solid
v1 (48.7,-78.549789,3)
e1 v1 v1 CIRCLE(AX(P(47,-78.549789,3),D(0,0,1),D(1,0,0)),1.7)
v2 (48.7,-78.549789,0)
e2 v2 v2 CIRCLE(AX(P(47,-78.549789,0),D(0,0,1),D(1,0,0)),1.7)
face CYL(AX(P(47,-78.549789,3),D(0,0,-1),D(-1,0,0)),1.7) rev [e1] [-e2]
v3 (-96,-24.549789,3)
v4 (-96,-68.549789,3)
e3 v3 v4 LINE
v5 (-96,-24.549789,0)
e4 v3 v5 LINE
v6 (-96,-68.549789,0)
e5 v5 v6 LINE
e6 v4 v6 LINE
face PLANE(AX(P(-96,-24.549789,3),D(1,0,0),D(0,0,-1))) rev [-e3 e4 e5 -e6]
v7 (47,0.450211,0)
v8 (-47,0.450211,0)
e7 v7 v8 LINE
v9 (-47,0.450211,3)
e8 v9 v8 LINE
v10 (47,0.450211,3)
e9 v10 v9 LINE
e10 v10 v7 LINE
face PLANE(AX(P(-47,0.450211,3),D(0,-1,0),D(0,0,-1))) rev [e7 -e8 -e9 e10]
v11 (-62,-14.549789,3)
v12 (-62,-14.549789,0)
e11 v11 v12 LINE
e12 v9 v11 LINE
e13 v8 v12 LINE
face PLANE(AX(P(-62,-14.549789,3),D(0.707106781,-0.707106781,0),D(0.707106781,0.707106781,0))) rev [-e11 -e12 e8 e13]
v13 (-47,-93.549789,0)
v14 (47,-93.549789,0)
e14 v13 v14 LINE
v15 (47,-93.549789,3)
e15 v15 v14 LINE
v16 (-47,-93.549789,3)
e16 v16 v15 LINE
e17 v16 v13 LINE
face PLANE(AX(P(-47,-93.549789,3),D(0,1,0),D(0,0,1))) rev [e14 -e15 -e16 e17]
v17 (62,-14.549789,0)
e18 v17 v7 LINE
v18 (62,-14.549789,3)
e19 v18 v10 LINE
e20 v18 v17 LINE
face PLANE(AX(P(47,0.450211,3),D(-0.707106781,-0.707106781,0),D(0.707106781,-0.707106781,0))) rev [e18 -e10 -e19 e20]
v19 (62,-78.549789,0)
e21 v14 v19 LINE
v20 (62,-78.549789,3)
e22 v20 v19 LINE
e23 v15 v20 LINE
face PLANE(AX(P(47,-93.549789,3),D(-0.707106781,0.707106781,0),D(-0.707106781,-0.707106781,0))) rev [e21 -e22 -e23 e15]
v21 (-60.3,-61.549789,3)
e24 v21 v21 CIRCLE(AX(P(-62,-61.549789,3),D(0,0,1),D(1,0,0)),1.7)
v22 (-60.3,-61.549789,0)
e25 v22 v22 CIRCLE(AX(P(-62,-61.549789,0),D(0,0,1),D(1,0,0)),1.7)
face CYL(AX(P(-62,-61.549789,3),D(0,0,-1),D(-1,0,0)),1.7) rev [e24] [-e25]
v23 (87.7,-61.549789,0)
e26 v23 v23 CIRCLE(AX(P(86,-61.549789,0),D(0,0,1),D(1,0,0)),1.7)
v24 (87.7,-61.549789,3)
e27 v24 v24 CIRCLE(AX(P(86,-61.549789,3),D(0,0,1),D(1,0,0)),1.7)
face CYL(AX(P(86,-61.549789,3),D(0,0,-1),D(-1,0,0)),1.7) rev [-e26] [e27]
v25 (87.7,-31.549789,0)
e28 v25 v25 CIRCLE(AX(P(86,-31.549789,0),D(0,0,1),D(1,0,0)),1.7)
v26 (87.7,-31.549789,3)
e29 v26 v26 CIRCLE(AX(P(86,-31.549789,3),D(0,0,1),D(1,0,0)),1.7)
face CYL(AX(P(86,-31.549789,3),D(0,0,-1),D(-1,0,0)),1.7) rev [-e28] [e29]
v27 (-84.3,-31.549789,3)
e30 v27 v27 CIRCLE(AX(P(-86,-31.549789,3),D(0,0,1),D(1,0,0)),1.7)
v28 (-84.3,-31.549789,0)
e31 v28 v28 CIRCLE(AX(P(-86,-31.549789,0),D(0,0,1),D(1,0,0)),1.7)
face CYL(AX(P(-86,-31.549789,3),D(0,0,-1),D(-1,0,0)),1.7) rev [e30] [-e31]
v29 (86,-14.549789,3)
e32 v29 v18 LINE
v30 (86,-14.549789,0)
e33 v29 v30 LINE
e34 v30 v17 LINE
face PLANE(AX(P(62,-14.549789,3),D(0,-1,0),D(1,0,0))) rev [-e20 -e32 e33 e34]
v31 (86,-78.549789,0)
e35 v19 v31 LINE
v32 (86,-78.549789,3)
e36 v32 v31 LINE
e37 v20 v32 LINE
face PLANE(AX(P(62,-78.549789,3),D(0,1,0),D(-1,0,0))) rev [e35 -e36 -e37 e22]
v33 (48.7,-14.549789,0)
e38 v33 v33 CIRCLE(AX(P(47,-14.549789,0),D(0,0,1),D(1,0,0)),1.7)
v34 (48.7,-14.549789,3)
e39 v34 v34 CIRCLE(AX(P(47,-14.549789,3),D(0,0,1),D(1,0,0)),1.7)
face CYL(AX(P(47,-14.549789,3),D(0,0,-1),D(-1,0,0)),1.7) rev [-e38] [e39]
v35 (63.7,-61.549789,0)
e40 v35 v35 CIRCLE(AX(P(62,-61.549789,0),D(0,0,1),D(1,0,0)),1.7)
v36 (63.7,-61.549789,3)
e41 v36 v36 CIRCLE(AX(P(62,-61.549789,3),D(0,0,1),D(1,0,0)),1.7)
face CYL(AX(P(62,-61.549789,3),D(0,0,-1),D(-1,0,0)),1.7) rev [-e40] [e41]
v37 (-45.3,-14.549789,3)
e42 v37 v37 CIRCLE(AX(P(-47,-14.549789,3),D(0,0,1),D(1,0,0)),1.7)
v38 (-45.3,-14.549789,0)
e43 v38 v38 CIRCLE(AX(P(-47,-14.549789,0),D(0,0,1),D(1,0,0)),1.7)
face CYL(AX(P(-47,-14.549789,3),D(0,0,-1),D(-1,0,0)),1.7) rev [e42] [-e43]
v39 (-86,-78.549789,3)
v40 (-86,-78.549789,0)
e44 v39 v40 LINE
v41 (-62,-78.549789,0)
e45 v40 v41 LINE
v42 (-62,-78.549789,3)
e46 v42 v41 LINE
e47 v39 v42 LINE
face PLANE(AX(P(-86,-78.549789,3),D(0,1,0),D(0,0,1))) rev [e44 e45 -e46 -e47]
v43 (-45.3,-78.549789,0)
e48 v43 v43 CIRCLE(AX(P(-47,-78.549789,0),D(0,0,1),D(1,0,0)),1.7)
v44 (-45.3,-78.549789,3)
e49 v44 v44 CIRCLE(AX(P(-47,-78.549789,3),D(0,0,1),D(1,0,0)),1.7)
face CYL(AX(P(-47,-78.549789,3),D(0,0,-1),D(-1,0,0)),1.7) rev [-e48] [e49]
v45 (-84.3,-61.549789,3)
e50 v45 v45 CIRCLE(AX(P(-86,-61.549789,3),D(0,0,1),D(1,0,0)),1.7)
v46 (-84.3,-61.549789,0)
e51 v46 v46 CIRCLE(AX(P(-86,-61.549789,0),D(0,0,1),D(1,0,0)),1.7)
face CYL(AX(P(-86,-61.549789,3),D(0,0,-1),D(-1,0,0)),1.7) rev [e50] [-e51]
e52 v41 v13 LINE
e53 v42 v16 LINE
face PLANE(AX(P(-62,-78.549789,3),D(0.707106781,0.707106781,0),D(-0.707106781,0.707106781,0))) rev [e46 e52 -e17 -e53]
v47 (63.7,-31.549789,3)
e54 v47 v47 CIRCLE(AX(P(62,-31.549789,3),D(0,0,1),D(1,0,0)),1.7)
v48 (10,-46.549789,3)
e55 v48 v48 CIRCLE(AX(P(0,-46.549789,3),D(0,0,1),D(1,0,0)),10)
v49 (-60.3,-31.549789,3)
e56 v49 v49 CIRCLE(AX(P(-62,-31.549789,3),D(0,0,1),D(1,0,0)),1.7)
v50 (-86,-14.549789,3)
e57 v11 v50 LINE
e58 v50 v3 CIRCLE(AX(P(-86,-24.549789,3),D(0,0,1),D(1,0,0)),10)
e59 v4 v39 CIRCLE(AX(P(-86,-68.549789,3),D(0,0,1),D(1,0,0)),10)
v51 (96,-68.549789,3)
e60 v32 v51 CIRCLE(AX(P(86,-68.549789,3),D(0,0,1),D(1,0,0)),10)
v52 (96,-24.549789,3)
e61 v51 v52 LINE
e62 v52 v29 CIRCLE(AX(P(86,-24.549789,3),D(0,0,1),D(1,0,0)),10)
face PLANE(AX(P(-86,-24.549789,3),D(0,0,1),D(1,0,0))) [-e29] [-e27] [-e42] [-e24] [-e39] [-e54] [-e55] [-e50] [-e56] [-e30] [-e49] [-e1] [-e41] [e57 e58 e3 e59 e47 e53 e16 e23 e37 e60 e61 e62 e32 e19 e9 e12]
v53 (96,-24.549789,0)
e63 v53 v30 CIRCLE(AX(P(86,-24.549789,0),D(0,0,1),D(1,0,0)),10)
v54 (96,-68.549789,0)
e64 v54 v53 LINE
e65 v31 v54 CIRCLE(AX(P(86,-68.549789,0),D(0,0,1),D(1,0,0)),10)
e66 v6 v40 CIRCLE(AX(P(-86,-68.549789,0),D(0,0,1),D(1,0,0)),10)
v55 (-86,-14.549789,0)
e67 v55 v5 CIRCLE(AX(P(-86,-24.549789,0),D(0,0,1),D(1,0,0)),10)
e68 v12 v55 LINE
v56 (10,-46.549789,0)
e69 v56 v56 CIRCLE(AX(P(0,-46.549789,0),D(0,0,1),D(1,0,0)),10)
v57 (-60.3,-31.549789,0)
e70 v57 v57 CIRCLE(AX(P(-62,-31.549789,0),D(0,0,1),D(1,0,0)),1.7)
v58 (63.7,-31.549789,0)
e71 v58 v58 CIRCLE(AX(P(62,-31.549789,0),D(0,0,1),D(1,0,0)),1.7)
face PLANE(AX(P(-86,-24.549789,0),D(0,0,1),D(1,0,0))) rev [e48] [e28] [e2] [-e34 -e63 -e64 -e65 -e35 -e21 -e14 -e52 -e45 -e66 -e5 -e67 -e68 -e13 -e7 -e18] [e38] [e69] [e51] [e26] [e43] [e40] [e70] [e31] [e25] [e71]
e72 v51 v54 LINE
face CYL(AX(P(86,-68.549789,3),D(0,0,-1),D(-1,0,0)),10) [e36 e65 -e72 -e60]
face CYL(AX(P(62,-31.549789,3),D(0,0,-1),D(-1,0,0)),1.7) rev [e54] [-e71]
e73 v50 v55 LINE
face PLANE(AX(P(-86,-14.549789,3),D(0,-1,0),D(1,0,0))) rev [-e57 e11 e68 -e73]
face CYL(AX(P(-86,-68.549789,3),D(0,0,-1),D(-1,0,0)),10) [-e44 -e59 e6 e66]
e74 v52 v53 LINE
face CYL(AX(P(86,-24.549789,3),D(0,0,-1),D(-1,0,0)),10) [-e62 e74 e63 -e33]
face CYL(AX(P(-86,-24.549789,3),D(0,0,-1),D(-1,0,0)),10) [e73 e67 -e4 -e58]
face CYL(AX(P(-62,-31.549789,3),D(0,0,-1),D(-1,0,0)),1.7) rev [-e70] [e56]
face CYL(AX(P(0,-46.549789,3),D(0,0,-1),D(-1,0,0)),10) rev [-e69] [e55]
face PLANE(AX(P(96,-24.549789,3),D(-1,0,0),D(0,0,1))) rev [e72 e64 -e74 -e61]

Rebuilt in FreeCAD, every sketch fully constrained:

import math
import FreeCAD as App
import Part
import Sketcher
Q = App.Units.Quantity

doc = App.newDocument("Part")
body = doc.addObject("PartDesign::Body", "Body")

# Sketch on XY plane
sketch1 = doc.addObject("Sketcher::SketchObject", "Sketch")
body.addObject(sketch1)
sketch1.AttachmentSupport = (doc.XY_Plane, [""])
sketch1.MapMode = "FlatFace"
sketch1.addGeometry([
    Part.LineSegment(App.Vector(-47, 0.450211, 0), App.Vector(-62, -14.549789, 0)),  # 0
    Part.LineSegment(App.Vector(-62, -14.549789, 0), App.Vector(-86, -14.549789, 0)),  # 1
    Part.ArcOfCircle(Part.Circle(App.Vector(-86, -24.549789, 0), App.Vector(0, 0, 1), 10), math.radians(90), math.radians(180)),  # 2
    Part.LineSegment(App.Vector(-96, -24.549789, 0), App.Vector(-96, -68.549789, 0)),  # 3
    Part.ArcOfCircle(Part.Circle(App.Vector(-86, -68.549789, 0), App.Vector(0, 0, 1), 10), math.radians(-180), math.radians(-90)),  # 4
    Part.LineSegment(App.Vector(-86, -78.549789, 0), App.Vector(-62, -78.549789, 0)),  # 5
    Part.LineSegment(App.Vector(-62, -78.549789, 0), App.Vector(-47, -93.549789, 0)),  # 6
    Part.LineSegment(App.Vector(-47, -93.549789, 0), App.Vector(47, -93.549789, 0)),  # 7
    Part.LineSegment(App.Vector(47, -93.549789, 0), App.Vector(62, -78.549789, 0)),  # 8
    Part.LineSegment(App.Vector(62, -78.549789, 0), App.Vector(86, -78.549789, 0)),  # 9
    Part.ArcOfCircle(Part.Circle(App.Vector(86, -68.549789, 0), App.Vector(0, 0, 1), 10), math.radians(-90), math.radians(0)),  # 10
    Part.LineSegment(App.Vector(96, -68.549789, 0), App.Vector(96, -24.549789, 0)),  # 11
    Part.ArcOfCircle(Part.Circle(App.Vector(86, -24.549789, 0), App.Vector(0, 0, 1), 10), math.radians(0), math.radians(90)),  # 12
    Part.LineSegment(App.Vector(86, -14.549789, 0), App.Vector(62, -14.549789, 0)),  # 13
    Part.LineSegment(App.Vector(62, -14.549789, 0), App.Vector(47, 0.450211, 0)),  # 14
    Part.LineSegment(App.Vector(47, 0.450211, 0), App.Vector(-47, 0.450211, 0)),  # 15
    Part.Circle(App.Vector(47, -78.549789, 0), App.Vector(0, 0, 1), 1.7),  # 16
    Part.Circle(App.Vector(86, -61.549789, 0), App.Vector(0, 0, 1), 1.7),  # 17
    Part.Circle(App.Vector(62, -61.549789, 0), App.Vector(0, 0, 1), 1.7),  # 18
    Part.Circle(App.Vector(-47, -78.549789, 0), App.Vector(0, 0, 1), 1.7),  # 19
    Part.Circle(App.Vector(0, -46.549789, 0), App.Vector(0, 0, 1), 10),  # 20
    Part.Circle(App.Vector(-62, -61.549789, 0), App.Vector(0, 0, 1), 1.7),  # 21
    Part.Circle(App.Vector(-86, -61.549789, 0), App.Vector(0, 0, 1), 1.7),  # 22
    Part.Circle(App.Vector(86, -31.549789, 0), App.Vector(0, 0, 1), 1.7),  # 23
    Part.Circle(App.Vector(62, -31.549789, 0), App.Vector(0, 0, 1), 1.7),  # 24
    Part.Circle(App.Vector(47, -14.549789, 0), App.Vector(0, 0, 1), 1.7),  # 25
    Part.Circle(App.Vector(-62, -31.549789, 0), App.Vector(0, 0, 1), 1.7),  # 26
    Part.Circle(App.Vector(-86, -31.549789, 0), App.Vector(0, 0, 1), 1.7),  # 27
    Part.Circle(App.Vector(-47, -14.549789, 0), App.Vector(0, 0, 1), 1.7),  # 28
], False)
sketch1.addConstraint([
    Sketcher.Constraint("Coincident", 0, 2, 1, 1),
    Sketcher.Constraint("Tangent", 1, 2, 2, 1),
    Sketcher.Constraint("Tangent", 2, 2, 3, 1),
    Sketcher.Constraint("Tangent", 3, 2, 4, 1),
    Sketcher.Constraint("Tangent", 4, 2, 5, 1),
    Sketcher.Constraint("Coincident", 5, 2, 6, 1),
    Sketcher.Constraint("Coincident", 6, 2, 7, 1),
    Sketcher.Constraint("Coincident", 7, 2, 8, 1),
    Sketcher.Constraint("Coincident", 8, 2, 9, 1),
    Sketcher.Constraint("Tangent", 9, 2, 10, 1),
    Sketcher.Constraint("Tangent", 10, 2, 11, 1),
    Sketcher.Constraint("Tangent", 11, 2, 12, 1),
    Sketcher.Constraint("Tangent", 12, 2, 13, 1),
    Sketcher.Constraint("Coincident", 13, 2, 14, 1),
    Sketcher.Constraint("Coincident", 14, 2, 15, 1),
    Sketcher.Constraint("Coincident", 15, 2, 0, 1),
    Sketcher.Constraint("Horizontal", 1),
    Sketcher.Constraint("Vertical", 3),
    Sketcher.Constraint("Horizontal", 5),
    Sketcher.Constraint("Horizontal", 7),
    Sketcher.Constraint("Horizontal", 9),
    Sketcher.Constraint("Vertical", 11),
    Sketcher.Constraint("Horizontal", 13),
    Sketcher.Constraint("Horizontal", 15),
    Sketcher.Constraint("Equal", 2, 4),
    Sketcher.Constraint("Equal", 4, 10),
    Sketcher.Constraint("Equal", 10, 12),
    Sketcher.Constraint("Equal", 16, 17),
    Sketcher.Constraint("Equal", 17, 18),
    Sketcher.Constraint("Equal", 18, 19),
    Sketcher.Constraint("Equal", 12, 20),
    Sketcher.Constraint("Equal", 19, 21),
    Sketcher.Constraint("Equal", 21, 22),
    Sketcher.Constraint("Equal", 22, 23),
    Sketcher.Constraint("Equal", 23, 24),
    Sketcher.Constraint("Equal", 24, 25),
    Sketcher.Constraint("Equal", 25, 26),
    Sketcher.Constraint("Equal", 26, 27),
    Sketcher.Constraint("Equal", 27, 28),
    Sketcher.Constraint("Symmetric", 4, 3, 10, 3, -2),
    Sketcher.Constraint("Symmetric", 16, 3, 19, 3, -2),
    Sketcher.Constraint("Symmetric", 18, 3, 21, 3, -2),
    Sketcher.Constraint("Symmetric", 17, 3, 22, 3, -2),
    Sketcher.Constraint("Symmetric", 24, 3, 26, 3, -2),
    Sketcher.Constraint("Symmetric", 23, 3, 27, 3, -2),
    Sketcher.Constraint("Symmetric", 25, 3, 28, 3, -2),
    Sketcher.Constraint("Symmetric", 0, 2, 13, 2, -2),
    Sketcher.Constraint("PointOnObject", 20, 3, -2),
    Sketcher.Constraint("Perpendicular", 0, 6),
    Sketcher.Constraint("Perpendicular", 6, 8),
    Sketcher.Constraint("Perpendicular", 8, 14),
    Sketcher.Constraint("Horizontal", 17, 3, 18, 3),
    Sketcher.Constraint("Horizontal", 23, 3, 24, 3),
    Sketcher.Constraint("Horizontal", 28, 3, 0, 2),
    Sketcher.Constraint("Horizontal", 19, 3, 4, 2),
    Sketcher.Constraint("Vertical", 12, 3, 17, 3),
    Sketcher.Constraint("Vertical", 17, 3, 23, 3),
    Sketcher.Constraint("Vertical", 18, 3, 24, 3),
    Sketcher.Constraint("Vertical", 16, 3, 25, 3),
    Sketcher.Constraint("Vertical", 26, 3, 0, 2),
    Sketcher.Constraint("Vertical", 0, 2, 5, 2),
    Sketcher.Constraint("Vertical", 28, 3, 6, 2),
    Sketcher.Constraint("Vertical", 25, 3, 7, 2),
    Sketcher.Constraint("Vertical", 24, 3, 8, 2),
    Sketcher.Constraint("Vertical", 7, 2, 14, 2),
    Sketcher.Constraint("Diameter", 20, Q("20 mm")),
    Sketcher.Constraint("Diameter", 16, Q("3.4 mm")),
    Sketcher.Constraint("DistanceX", 1, 2, 1, 1, Q("24 mm")),
    Sketcher.Constraint("DistanceX", 7, 1, 7, 2, Q("94 mm")),
    Sketcher.Constraint("DistanceY", 3, 2, 3, 1, Q("44 mm")),
    Sketcher.Constraint("DistanceX", 2, 3, -1, 1, Q("86 mm")),
    Sketcher.Constraint("DistanceY", 10, 3, 17, 3, Q("7 mm")),
    Sketcher.Constraint("DistanceY", 16, 3, 20, 3, Q("32 mm")),
    Sketcher.Constraint("DistanceY", 23, 3, 12, 3, Q("7 mm")),
    Sketcher.Constraint("DistanceY", 2, 3, -1, 1, Q("24.549789 mm")),
])
pad1 = doc.addObject("PartDesign::Pad", "Pad")
body.addObject(pad1)
pad1.Profile = sketch1
pad1.Length = 3

doc.recompute()
